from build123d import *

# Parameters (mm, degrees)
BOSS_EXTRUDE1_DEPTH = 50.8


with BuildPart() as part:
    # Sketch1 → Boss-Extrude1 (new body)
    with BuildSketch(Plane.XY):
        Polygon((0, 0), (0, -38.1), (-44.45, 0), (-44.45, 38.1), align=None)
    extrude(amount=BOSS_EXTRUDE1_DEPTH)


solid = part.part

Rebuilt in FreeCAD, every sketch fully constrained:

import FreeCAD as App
import Part
import Sketcher
from FreeCAD import Vector
Q = App.Units.Quantity


def add_polygon(sketch, points):
    """Adds a closed chain of lines whose ends are joined by coincident constraints."""
    first, n = sketch.GeometryCount, len(points)
    for a, b in zip(points, points[1:] + points[:1]):
        sketch.addGeometry(Part.LineSegment(App.Vector(*a, 0), App.Vector(*b, 0)), False)
    for i in range(n):
        sketch.addConstraint(Sketcher.Constraint("Coincident", first + i, 2, first + (i + 1) % n, 1))

doc = App.newDocument("Part")
body = doc.addObject("PartDesign::Body", "Body")

# Sketch on XY plane
sketch1 = body.newObject("Sketcher::SketchObject", "Sketch")
sketch1.AttachmentSupport = (doc.getObject("XY_Plane"), [""])
sketch1.MapMode = "FlatFace"
add_polygon(sketch1, [(0, -38), (0, 0), (-44, 38), (-44, 0)])  # lines 0-3
sketch1.addConstraint(Sketcher.Constraint("Vertical", 0))
sketch1.addConstraint(Sketcher.Constraint("Vertical", 2))
sketch1.addConstraint(Sketcher.Constraint("Coincident", 0, 2, -1, 1))
sketch1.addConstraint(Sketcher.Constraint("PointOnObject", 2, 2, -1))
sketch1.addConstraint(Sketcher.Constraint("Parallel", 1, 3))
sketch1.addConstraint(Sketcher.Constraint("DistanceY", 0, 1, 0, 2, Q("1.5 in")))
sketch1.addConstraint(Sketcher.Constraint("DistanceX", 1, 2, -1, 1, Q("1.75 in")))
pad1 = body.newObject("PartDesign::Pad", "Pad")
pad1.Profile = sketch1
pad1.Length = Q("2 in")

doc.recompute()
